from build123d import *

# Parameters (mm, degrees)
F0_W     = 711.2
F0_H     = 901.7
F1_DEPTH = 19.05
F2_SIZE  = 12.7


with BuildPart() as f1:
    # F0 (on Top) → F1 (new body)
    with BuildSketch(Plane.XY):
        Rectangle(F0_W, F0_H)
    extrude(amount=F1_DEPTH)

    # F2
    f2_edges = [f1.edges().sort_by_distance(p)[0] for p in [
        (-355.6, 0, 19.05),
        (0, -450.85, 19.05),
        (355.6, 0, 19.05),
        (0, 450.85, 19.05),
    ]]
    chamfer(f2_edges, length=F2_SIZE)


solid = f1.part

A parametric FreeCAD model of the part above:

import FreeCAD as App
import Part
import Sketcher
Q = App.Units.Quantity


def edges_at(feature, points):
    """Names of the edges that pass closest to the given points."""
    edges = feature.Shape.Edges
    near = lambda p: min(range(len(edges)), key=lambda i: edges[i].distToShape(Part.Vertex(*p))[0])
    return sorted({f"Edge{near(p) + 1}" for p in points})

doc = App.newDocument("Part")
params = doc.addObject("Spreadsheet::Sheet", "Params")
for row, (alias, value) in enumerate([
    ("sketch1_width", "28 in"),
    ("sketch1_height", "35.5 in"),
    ("pad1_length", "0.75 in"),
    ("chamfer_size", "0.5 in"),
], start=1):
    params.set(f"A{row}", alias)
    params.set(f"B{row}", "=" + value)
    params.setAlias(f"B{row}", alias)

body = doc.addObject("PartDesign::Body", "Body")

# Sketch on XY plane
sketch1 = body.newObject("Sketcher::SketchObject", "Sketch")
sketch1.AttachmentSupport = (doc.getObject("XY_Plane"), [""])
sketch1.MapMode = "FlatFace"
sketch1.addGeometry([
    Part.LineSegment(App.Vector(-356, 451, 0), App.Vector(-356, -451, 0)),
    Part.LineSegment(App.Vector(-356, -451, 0), App.Vector(356, -451, 0)),
    Part.LineSegment(App.Vector(356, -451, 0), App.Vector(356, 451, 0)),
    Part.LineSegment(App.Vector(356, 451, 0), App.Vector(-356, 451, 0)),
], False)
sketch1.addConstraint([
    Sketcher.Constraint("Coincident", 0, 2, 1, 1),
    Sketcher.Constraint("Coincident", 1, 2, 2, 1),
    Sketcher.Constraint("Coincident", 2, 2, 3, 1),
    Sketcher.Constraint("Coincident", 3, 2, 0, 1),
    Sketcher.Constraint("Vertical", 0),
    Sketcher.Constraint("Horizontal", 1),
    Sketcher.Constraint("Vertical", 2),
    Sketcher.Constraint("Horizontal", 3),
    Sketcher.Constraint("Symmetric", 0, 2, 2, 2, -1, 1),
    Sketcher.Constraint("DistanceX", 1, 1, 1, 2, Q("28 in")),
    Sketcher.Constraint("DistanceY", 0, 2, 0, 1, Q("35.5 in")),
])
sketch1.setExpression("Constraints[9]", "Params.sketch1_width")
sketch1.setExpression("Constraints[10]", "Params.sketch1_height")
pad1 = body.newObject("PartDesign::Pad", "Pad")
pad1.Profile = sketch1
pad1.setExpression("Length", "Params.pad1_length")
doc.recompute()

chamfer = body.newObject("PartDesign::Chamfer", "Chamfer")
chamfer.Base = (pad1, edges_at(pad1, [
    (-355.6, 0, 19.05),
    (0, -450.85, 19.05),
    (355.6, 0, 19.05),
    (0, 450.85, 19.05),
]))
chamfer.setExpression("Size", "Params.chamfer_size")

doc.recompute()
